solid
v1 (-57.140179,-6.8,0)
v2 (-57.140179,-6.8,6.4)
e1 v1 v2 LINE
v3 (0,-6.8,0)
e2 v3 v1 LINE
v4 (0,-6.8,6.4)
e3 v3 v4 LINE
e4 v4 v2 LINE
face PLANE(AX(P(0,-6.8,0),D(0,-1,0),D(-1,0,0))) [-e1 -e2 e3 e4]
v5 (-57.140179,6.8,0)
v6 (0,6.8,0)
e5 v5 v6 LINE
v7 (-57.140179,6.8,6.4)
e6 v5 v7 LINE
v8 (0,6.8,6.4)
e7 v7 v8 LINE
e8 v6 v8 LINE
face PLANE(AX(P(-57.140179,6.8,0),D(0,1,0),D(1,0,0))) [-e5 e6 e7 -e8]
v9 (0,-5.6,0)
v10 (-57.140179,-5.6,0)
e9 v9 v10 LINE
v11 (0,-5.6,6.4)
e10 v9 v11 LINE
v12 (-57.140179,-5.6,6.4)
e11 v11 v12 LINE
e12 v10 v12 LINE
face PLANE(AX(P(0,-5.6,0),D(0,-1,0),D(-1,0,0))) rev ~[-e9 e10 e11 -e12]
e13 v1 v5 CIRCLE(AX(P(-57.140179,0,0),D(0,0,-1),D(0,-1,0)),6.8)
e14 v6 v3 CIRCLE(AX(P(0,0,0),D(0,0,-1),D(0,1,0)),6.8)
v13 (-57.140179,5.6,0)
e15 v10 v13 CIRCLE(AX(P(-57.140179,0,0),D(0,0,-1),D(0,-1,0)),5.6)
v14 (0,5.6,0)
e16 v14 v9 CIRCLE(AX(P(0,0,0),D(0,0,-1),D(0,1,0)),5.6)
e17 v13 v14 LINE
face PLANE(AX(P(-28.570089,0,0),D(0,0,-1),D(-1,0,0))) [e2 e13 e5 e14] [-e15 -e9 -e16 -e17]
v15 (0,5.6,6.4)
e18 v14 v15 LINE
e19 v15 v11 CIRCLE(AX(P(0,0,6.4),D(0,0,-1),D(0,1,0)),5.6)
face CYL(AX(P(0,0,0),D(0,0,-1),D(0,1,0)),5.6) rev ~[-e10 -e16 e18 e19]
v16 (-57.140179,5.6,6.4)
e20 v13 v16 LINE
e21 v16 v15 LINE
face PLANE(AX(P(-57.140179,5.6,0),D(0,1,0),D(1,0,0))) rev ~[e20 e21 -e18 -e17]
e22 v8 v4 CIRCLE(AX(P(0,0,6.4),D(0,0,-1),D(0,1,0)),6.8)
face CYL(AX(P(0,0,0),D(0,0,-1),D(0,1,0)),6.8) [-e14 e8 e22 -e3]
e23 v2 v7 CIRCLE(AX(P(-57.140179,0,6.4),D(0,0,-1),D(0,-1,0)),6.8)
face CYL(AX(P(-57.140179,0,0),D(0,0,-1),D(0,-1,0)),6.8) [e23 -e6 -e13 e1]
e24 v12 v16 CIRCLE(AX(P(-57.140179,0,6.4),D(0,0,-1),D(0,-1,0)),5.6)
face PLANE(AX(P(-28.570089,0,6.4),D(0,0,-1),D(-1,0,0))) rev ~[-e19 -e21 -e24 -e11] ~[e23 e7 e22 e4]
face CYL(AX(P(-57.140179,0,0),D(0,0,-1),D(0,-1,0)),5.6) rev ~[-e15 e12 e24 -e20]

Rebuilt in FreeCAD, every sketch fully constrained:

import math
import FreeCAD as App
import Part
import Sketcher

doc = App.newDocument("Part")
body = doc.addObject("PartDesign::Body", "Body")

# Sketch on XY plane
sketch1 = body.newObject("Sketcher::SketchObject", "Sketch")
sketch1.AttachmentSupport = (doc.getObject("XY_Plane"), [""])
sketch1.MapMode = "FlatFace"
sketch1.addGeometry(Part.LineSegment(App.Vector(-57.140179, -6.8, 0), App.Vector(0, -6.8, 0)), False)
sketch1.addGeometry(Part.ArcOfCircle(Part.Circle(App.Vector(0, 0, 0), App.Vector(0, 0, 1), 6.8), math.radians(-90), math.radians(90)), False)
sketch1.addGeometry(Part.LineSegment(App.Vector(0, 6.8, 0), App.Vector(-57.140179, 6.8, 0)), False)
sketch1.addGeometry(Part.ArcOfCircle(Part.Circle(App.Vector(-57.140179, 0, 0), App.Vector(0, 0, 1), 6.8), math.radians(90), math.radians(270)), False)
sketch1.addGeometry(Part.LineSegment(App.Vector(0, -5.6, 0), App.Vector(-57.140179, -5.6, 0)), False)
sketch1.addGeometry(Part.ArcOfCircle(Part.Circle(App.Vector(-57.140179, 0, 0), App.Vector(0, 0, 1), 5.6), math.radians(90), math.radians(270)), False)
sketch1.addGeometry(Part.LineSegment(App.Vector(-57.140179, 5.6, 0), App.Vector(0, 5.6, 0)), False)
sketch1.addGeometry(Part.ArcOfCircle(Part.Circle(App.Vector(0, 0, 0), App.Vector(0, 0, 1), 5.6), math.radians(-90), math.radians(90)), False)
sketch1.addConstraint(Sketcher.Constraint("Tangent", 0, 2, 1, 1))
sketch1.addConstraint(Sketcher.Constraint("Tangent", 1, 2, 2, 1))
sketch1.addConstraint(Sketcher.Constraint("Tangent", 2, 2, 3, 1))
sketch1.addConstraint(Sketcher.Constraint("Tangent", 3, 2, 0, 1))
sketch1.addConstraint(Sketcher.Constraint("Tangent", 4, 2, 5, 2))
sketch1.addConstraint(Sketcher.Constraint("Tangent", 5, 1, 6, 1))
sketch1.addConstraint(Sketcher.Constraint("Tangent", 6, 2, 7, 2))
sketch1.addConstraint(Sketcher.Constraint("Tangent", 7, 1, 4, 1))
sketch1.addConstraint(Sketcher.Constraint("Horizontal", 0))
sketch1.addConstraint(Sketcher.Constraint("Horizontal", 2))
sketch1.addConstraint(Sketcher.Constraint("Horizontal", 4))
sketch1.addConstraint(Sketcher.Constraint("Horizontal", 6))
sketch1.addConstraint(Sketcher.Constraint("Coincident", 1, 3, -1, 1))
sketch1.addConstraint(Sketcher.Constraint("Coincident", 7, 3, -1, 1))
sketch1.addConstraint(Sketcher.Constraint("Vertical", 5, 3, 2, 2))
sketch1.addConstraint(Sketcher.Constraint("Radius", 1, 6.8))
sketch1.addConstraint(Sketcher.Constraint("Radius", 5, 5.6))
sketch1.addConstraint(Sketcher.Constraint("DistanceX", 0, 1, 0, 2, 57.140179))
pad1 = body.newObject("PartDesign::Pad", "Pad")
pad1.Profile = sketch1
pad1.Length = 6.4

doc.recompute()
